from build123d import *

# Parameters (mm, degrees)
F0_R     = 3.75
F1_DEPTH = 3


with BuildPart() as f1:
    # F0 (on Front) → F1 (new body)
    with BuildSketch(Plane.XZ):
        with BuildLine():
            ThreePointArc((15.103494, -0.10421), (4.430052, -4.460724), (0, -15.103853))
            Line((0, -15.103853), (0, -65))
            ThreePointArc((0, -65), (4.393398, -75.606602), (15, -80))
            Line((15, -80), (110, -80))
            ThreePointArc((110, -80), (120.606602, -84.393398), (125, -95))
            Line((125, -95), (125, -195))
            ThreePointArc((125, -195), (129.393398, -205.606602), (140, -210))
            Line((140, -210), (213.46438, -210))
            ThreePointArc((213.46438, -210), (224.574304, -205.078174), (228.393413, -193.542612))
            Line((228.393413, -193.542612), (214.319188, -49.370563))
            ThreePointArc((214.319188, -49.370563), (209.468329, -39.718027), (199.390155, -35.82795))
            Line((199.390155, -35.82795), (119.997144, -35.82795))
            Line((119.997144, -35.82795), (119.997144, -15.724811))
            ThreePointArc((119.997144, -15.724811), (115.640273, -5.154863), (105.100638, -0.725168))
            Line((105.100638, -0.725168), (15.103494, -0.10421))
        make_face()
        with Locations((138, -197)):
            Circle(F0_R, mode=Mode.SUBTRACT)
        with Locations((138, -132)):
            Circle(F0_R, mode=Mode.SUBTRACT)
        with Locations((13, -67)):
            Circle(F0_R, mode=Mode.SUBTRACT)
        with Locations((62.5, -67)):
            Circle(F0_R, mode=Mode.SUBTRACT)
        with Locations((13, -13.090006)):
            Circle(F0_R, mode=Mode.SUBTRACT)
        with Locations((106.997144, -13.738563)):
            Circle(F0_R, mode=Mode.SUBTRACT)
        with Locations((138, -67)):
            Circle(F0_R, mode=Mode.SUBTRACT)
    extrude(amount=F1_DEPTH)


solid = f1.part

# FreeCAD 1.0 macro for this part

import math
import FreeCAD as App
import Part
import Sketcher

doc = App.newDocument("Part")
body = doc.addObject("PartDesign::Body", "Body")

sketch1 = body.newObject("Sketcher::SketchObject", "Sketch")
sketch1.AttachmentSupport = (doc.getObject("XZ_Plane"), [""])
sketch1.MapMode = "FlatFace"
sketch1.addGeometry([
    Part.ArcOfCircle(Part.Circle(App.Vector(15, -15.1, 0), App.Vector(0, 0, 1), 15), math.radians(90), math.radians(180)),
    Part.LineSegment(App.Vector(0, -15.1, 0), App.Vector(0, -65, 0)),
    Part.ArcOfCircle(Part.Circle(App.Vector(15, -65, 0), App.Vector(0, 0, 1), 15), math.radians(180), math.radians(270)),
    Part.LineSegment(App.Vector(15, -80, 0), App.Vector(110, -80, 0)),
    Part.ArcOfCircle(Part.Circle(App.Vector(110, -95, 0), App.Vector(0, 0, 1), 15), math.radians(0), math.radians(90)),
    Part.LineSegment(App.Vector(125, -95, 0), App.Vector(125, -195, 0)),
    Part.ArcOfCircle(Part.Circle(App.Vector(140, -195, 0), App.Vector(0, 0, 1), 15), math.radians(180), math.radians(270)),
    Part.LineSegment(App.Vector(140, -210, 0), App.Vector(213.5, -210, 0)),
    Part.ArcOfCircle(Part.Circle(App.Vector(213.5, -195, 0), App.Vector(0, 0, 1), 15), math.radians(-90), math.radians(6)),
    Part.LineSegment(App.Vector(228.4, -193.5, 0), App.Vector(214.3, -49.4, 0)),
    Part.ArcOfCircle(Part.Circle(App.Vector(199.4, -50.8, 0), App.Vector(0, 0, 1), 15), math.radians(6), math.radians(90)),
    Part.LineSegment(App.Vector(199.4, -35.8, 0), App.Vector(120, -35.8, 0)),
    Part.LineSegment(App.Vector(120, -35.8, 0), App.Vector(120, -15.7, 0)),
    Part.ArcOfCircle(Part.Circle(App.Vector(105, -15.7, 0), App.Vector(0, 0, 1), 15), math.radians(0), math.radians(90)),
    Part.LineSegment(App.Vector(105.1, -0.7, 0), App.Vector(15.1, -0.1, 0)),
    Part.Circle(App.Vector(138, -197, 0), App.Vector(0, 0, 1), 3.8),
    Part.Circle(App.Vector(138, -132, 0), App.Vector(0, 0, 1), 3.8),
    Part.Circle(App.Vector(13, -67, 0), App.Vector(0, 0, 1), 3.8),
    Part.Circle(App.Vector(62.5, -67, 0), App.Vector(0, 0, 1), 3.8),
    Part.Circle(App.Vector(13, -13.1, 0), App.Vector(0, 0, 1), 3.8),
    Part.Circle(App.Vector(138, -67, 0), App.Vector(0, 0, 1), 3.8),
    Part.Circle(App.Vector(107, -13.7, 0), App.Vector(0, 0, 1), 3.8),
], False)
sketch1.addConstraint([
    Sketcher.Constraint("Tangent", 0, 2, 1, 1),
    Sketcher.Constraint("Tangent", 1, 2, 2, 1),
    Sketcher.Constraint("Tangent", 2, 2, 3, 1),
    Sketcher.Constraint("Tangent", 3, 2, 4, 2),
    Sketcher.Constraint("Tangent", 4, 1, 5, 1),
    Sketcher.Constraint("Tangent", 5, 2, 6, 1),
    Sketcher.Constraint("Tangent", 6, 2, 7, 1),
    Sketcher.Constraint("Tangent", 7, 2, 8, 1),
    Sketcher.Constraint("Tangent", 8, 2, 9, 1),
    Sketcher.Constraint("Tangent", 9, 2, 10, 1),
    Sketcher.Constraint("Tangent", 10, 2, 11, 1),
    Sketcher.Constraint("Coincident", 11, 2, 12, 1),
    Sketcher.Constraint("Tangent", 12, 2, 13, 1),
    Sketcher.Constraint("Tangent", 13, 2, 14, 1),
    Sketcher.Constraint("Tangent", 14, 2, 0, 1),
    Sketcher.Constraint("Vertical", 1),
    Sketcher.Constraint("Horizontal", 3),
    Sketcher.Constraint("Vertical", 5),
    Sketcher.Constraint("Horizontal", 7),
    Sketcher.Constraint("Horizontal", 11),
    Sketcher.Constraint("Vertical", 12),
    Sketcher.Constraint("Equal", 0, 2),
    Sketcher.Constraint("Equal", 2, 4),
    Sketcher.Constraint("Equal", 4, 6),
    Sketcher.Constraint("Equal", 6, 8),
    Sketcher.Constraint("Equal", 8, 10),
    Sketcher.Constraint("Equal", 10, 13),
    Sketcher.Constraint("Equal", 15, 16),
    Sketcher.Constraint("Equal", 16, 17),
    Sketcher.Constraint("Equal", 17, 18),
    Sketcher.Constraint("Equal", 18, 19),
    Sketcher.Constraint("Equal", 19, 20),
    Sketcher.Constraint("Equal", 20, 21),
    Sketcher.Constraint("PointOnObject", 0, 2, -2),
    Sketcher.Constraint("Horizontal", 17, 3, 18, 3),
    Sketcher.Constraint("Horizontal", 18, 3, 20, 3),
    Sketcher.Constraint("Vertical", 15, 3, 16, 3),
    Sketcher.Constraint("Vertical", 17, 3, 19, 3),
    Sketcher.Constraint("Vertical", 16, 3, 20, 3),
    Sketcher.Constraint("Radius", 0, 15.0),
    Sketcher.Constraint("Diameter", 15, 7.5),
    Sketcher.Constraint("DistanceX", 3, 1, 3, 2, 95.0),
    Sketcher.Constraint("DistanceY", 5, 2, 5, 1, 100.0),
    Sketcher.Constraint("DistanceY", 2, 3, -1, 1, 65.000001),
    Sketcher.Constraint("DistanceX", -1, 1, 15, 3, 138.0),
    Sketcher.Constraint("DistanceY", 15, 3, -1, 1, 197.0),
    Sketcher.Constraint("DistanceY", 16, 3, -1, 1, 132.0),
    Sketcher.Constraint("DistanceX", -1, 1, 17, 3, 13.0),
    Sketcher.Constraint("DistanceY", 17, 3, -1, 1, 67.0),
    Sketcher.Constraint("DistanceX", 13, 3, 21, 3, 2.0),
    Sketcher.Constraint("DistanceX", -1, 1, 18, 3, 62.5),
    Sketcher.Constraint("DistanceX", 7, 1, 7, 2, 73.46438),
    Sketcher.Constraint("DistanceX", 11, 2, 11, 1, 79.393011),
    Sketcher.Constraint("DistanceY", 12, 1, 12, 2, 20.103139),
    Sketcher.Constraint("DistanceY", 10, 3, 0, 3, 35.724099),
    Sketcher.Constraint("Distance", 9, 144.85739),
    Sketcher.Constraint("DistanceY", 1, 2, 1, 1, 49.896147),
    Sketcher.Constraint("DistanceY", 13, 3, 21, 3, 1.986248),
    Sketcher.Constraint("DistanceY", 19, 3, -1, 1, 13.090006),
])
pad1 = body.newObject("PartDesign::Pad", "Pad")
pad1.Profile = sketch1
pad1.Length = 3

doc.recompute()
